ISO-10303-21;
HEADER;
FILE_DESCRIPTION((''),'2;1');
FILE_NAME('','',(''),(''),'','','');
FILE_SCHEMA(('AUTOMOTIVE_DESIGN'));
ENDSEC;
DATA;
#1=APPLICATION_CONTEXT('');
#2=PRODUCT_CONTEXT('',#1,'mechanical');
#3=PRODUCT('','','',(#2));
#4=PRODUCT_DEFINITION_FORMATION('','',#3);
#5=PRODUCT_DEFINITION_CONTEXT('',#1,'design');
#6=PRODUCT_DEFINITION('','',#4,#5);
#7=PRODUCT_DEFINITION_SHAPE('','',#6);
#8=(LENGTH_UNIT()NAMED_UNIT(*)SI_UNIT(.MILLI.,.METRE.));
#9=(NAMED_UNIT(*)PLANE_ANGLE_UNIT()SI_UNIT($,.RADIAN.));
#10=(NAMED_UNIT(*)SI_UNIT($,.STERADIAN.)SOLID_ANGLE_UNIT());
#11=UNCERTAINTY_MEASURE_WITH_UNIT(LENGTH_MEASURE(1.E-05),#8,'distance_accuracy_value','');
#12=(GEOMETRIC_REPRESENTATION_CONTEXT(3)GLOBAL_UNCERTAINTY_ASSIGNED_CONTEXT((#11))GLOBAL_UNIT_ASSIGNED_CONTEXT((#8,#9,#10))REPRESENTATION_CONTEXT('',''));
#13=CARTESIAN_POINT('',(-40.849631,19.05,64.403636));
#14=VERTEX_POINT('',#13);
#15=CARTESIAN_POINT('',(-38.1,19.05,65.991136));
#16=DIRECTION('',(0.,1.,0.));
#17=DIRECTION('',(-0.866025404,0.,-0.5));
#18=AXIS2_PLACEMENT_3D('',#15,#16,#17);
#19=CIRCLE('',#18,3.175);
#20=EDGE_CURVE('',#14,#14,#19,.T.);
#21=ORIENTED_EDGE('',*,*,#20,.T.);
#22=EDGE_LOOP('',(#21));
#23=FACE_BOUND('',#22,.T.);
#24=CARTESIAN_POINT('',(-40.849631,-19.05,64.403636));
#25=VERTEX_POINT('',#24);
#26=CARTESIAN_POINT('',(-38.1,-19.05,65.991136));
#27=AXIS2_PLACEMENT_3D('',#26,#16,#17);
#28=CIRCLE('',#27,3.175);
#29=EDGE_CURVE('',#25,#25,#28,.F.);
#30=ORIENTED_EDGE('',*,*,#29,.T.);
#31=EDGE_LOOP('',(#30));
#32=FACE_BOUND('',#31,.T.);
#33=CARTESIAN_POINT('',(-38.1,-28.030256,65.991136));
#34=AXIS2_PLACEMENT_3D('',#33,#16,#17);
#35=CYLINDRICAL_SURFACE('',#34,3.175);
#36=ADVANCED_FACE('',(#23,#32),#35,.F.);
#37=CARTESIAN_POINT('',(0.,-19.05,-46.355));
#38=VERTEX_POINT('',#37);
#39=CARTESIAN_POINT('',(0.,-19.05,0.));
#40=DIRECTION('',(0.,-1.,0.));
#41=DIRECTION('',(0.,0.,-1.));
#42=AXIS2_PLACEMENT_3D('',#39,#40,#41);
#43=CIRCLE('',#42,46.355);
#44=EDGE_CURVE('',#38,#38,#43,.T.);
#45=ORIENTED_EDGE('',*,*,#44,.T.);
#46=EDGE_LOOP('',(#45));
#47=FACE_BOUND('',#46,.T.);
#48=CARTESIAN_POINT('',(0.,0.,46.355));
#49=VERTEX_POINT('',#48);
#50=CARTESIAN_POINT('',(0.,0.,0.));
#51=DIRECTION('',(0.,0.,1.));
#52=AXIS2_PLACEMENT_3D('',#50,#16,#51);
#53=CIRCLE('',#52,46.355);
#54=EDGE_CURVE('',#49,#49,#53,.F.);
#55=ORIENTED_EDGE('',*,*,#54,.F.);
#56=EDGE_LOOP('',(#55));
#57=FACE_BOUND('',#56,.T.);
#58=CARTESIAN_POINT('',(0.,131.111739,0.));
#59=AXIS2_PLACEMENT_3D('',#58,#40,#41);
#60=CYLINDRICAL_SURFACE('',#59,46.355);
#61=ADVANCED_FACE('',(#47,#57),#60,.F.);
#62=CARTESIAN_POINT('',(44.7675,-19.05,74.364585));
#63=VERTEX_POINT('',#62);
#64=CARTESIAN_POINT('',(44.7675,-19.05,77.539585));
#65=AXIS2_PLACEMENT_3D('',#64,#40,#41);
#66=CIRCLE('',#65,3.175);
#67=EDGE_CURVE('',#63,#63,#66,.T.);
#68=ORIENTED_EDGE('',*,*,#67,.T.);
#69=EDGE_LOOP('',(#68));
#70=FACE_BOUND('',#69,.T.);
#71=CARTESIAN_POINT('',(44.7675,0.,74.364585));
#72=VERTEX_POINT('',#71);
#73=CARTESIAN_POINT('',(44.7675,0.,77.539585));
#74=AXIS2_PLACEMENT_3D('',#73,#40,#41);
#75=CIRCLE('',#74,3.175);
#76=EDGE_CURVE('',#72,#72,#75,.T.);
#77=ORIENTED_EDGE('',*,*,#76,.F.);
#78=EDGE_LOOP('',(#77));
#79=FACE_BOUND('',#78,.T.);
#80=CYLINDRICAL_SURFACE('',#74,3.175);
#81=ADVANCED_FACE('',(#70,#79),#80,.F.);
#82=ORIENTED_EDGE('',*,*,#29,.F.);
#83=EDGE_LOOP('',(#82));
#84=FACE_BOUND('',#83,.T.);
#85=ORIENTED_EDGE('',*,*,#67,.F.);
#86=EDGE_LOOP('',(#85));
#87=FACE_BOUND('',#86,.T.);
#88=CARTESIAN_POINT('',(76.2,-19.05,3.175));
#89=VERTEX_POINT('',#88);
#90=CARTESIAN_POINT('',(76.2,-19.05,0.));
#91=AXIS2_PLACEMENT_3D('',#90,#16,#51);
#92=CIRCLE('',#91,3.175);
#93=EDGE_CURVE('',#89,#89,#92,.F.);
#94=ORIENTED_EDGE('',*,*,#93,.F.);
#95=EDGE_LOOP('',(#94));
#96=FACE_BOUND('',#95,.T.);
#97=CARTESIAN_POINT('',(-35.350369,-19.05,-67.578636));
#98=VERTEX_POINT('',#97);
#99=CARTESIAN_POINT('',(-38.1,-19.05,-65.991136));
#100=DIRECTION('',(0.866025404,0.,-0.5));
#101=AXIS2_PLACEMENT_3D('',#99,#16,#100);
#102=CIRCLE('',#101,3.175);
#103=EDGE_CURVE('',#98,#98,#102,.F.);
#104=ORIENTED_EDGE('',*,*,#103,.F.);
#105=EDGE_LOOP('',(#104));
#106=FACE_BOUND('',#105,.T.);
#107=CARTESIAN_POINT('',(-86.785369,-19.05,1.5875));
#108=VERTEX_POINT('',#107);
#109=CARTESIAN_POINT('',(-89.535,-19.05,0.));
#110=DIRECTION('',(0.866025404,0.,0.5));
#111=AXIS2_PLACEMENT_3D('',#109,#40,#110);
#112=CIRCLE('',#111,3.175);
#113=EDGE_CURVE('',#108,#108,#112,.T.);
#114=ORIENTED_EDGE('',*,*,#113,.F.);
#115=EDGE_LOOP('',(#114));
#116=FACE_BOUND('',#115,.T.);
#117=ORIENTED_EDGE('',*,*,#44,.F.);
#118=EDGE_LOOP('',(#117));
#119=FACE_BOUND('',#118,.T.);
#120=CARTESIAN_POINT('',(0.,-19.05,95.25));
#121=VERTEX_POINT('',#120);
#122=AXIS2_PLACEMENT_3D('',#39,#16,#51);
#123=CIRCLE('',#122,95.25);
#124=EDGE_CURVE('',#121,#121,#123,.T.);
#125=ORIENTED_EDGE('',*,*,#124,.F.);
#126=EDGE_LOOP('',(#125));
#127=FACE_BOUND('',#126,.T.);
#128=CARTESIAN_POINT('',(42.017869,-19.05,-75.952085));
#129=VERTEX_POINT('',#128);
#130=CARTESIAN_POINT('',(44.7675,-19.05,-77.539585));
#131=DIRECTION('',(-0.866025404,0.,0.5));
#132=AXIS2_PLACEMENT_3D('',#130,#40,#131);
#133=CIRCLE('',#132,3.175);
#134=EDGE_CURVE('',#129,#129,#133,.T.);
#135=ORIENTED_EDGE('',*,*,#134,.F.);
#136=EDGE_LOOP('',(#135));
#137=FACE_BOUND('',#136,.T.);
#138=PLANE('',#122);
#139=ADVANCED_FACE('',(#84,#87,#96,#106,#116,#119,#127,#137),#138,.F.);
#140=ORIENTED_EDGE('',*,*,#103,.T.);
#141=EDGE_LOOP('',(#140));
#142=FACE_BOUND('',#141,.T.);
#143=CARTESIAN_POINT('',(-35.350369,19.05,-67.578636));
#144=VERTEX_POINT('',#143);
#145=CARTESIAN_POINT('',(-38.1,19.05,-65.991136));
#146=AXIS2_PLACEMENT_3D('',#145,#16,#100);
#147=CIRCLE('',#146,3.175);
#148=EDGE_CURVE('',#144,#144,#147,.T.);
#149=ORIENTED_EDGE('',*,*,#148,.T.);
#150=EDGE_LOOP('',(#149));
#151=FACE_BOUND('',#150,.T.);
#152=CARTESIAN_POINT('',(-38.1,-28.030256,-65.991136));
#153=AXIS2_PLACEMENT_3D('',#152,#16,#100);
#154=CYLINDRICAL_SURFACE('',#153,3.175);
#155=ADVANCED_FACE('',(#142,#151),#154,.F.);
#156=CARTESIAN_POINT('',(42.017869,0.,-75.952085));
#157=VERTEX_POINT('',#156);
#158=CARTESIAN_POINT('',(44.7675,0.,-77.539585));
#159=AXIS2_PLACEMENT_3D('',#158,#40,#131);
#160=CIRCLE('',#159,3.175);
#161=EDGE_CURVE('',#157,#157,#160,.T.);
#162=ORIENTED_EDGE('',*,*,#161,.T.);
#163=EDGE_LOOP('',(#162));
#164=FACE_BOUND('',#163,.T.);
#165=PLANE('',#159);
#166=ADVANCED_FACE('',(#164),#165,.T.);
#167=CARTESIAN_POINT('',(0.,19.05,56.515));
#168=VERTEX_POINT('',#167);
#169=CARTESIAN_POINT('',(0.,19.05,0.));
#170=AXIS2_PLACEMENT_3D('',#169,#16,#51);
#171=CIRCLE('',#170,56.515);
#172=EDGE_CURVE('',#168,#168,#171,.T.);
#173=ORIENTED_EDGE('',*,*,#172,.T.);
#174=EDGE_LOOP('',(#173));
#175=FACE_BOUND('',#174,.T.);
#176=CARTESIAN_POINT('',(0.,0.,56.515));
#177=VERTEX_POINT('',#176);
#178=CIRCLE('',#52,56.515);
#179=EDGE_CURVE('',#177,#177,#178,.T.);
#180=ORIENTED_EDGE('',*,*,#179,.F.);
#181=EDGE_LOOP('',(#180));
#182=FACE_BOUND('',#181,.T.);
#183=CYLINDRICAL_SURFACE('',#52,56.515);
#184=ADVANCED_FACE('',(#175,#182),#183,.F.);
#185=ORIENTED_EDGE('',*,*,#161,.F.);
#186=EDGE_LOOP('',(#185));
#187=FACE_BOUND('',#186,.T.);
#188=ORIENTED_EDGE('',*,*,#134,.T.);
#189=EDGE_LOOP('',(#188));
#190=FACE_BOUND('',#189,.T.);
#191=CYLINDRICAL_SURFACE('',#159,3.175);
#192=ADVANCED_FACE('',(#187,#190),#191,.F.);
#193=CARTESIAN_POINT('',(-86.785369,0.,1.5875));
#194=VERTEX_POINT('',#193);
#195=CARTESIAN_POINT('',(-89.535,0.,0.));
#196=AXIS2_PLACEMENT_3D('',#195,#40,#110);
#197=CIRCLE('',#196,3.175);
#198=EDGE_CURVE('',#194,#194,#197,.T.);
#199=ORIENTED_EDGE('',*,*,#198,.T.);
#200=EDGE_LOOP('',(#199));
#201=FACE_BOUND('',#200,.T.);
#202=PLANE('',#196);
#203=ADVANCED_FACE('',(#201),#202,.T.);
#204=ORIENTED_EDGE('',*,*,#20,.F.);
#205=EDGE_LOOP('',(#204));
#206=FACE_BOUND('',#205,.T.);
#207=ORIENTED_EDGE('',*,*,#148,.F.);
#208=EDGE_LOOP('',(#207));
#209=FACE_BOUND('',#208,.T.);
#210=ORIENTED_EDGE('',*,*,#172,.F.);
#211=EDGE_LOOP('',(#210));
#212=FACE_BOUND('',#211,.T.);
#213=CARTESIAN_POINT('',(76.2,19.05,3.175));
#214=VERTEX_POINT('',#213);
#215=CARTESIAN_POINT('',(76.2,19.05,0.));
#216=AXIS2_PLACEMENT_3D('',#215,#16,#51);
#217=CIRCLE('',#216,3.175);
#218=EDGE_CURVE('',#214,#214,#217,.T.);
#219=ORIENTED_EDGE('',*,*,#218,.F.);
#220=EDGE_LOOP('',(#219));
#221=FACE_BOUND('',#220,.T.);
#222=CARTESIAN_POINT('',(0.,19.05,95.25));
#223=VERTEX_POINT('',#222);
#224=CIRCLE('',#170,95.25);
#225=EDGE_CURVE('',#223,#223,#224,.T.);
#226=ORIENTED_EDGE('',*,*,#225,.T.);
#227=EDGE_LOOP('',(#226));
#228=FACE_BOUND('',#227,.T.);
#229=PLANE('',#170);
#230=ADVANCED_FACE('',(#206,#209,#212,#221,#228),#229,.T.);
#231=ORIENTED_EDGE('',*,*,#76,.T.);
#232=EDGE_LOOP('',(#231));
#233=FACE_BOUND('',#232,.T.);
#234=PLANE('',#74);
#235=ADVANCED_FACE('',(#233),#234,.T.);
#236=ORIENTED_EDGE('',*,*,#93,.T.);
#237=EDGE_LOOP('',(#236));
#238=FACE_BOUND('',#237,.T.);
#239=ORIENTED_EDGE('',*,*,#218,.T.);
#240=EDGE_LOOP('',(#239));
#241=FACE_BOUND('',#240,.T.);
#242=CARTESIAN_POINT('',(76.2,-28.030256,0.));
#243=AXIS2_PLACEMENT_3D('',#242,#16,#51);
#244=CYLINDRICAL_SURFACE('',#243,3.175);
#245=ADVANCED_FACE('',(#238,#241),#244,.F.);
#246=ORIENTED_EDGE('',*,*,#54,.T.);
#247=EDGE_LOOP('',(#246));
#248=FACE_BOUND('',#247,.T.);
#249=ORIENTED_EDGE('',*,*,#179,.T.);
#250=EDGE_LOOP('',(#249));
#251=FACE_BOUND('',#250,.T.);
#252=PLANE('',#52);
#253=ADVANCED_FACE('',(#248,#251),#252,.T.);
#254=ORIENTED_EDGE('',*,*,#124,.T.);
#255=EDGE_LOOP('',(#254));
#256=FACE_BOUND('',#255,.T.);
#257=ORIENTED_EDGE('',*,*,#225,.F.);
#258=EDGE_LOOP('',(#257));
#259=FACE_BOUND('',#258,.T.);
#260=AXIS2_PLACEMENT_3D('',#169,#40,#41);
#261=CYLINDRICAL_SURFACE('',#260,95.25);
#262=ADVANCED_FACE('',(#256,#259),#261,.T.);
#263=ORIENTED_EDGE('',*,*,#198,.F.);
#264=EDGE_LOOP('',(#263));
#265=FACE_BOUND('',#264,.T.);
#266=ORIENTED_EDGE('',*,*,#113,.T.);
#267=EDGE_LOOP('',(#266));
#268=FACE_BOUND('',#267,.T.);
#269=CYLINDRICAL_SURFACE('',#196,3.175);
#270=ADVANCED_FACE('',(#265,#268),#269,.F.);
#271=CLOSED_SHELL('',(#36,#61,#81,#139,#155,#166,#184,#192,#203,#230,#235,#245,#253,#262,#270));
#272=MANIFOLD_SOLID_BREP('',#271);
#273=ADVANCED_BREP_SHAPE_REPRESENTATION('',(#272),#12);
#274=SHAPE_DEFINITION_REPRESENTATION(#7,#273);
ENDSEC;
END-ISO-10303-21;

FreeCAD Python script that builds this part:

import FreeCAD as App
import Part
import Sketcher
from FreeCAD import Vector
Q = App.Units.Quantity

doc = App.newDocument("Part")
body = doc.addObject("PartDesign::Body", "Body")

sketch1 = doc.addObject("Sketcher::SketchObject", "Sketch")
body.addObject(sketch1)
sketch1.AttachmentSupport = (doc.XZ_Plane, [""])
sketch1.MapMode = "FlatFace"
sketch1.addGeometry(Part.Circle(Vector(0, 0, 0), Vector(0, 0, 1), 95), False)
sketch1.addConstraint([
    Sketcher.Constraint("Coincident", 0, 3, -1, 1),
    Sketcher.Constraint("Diameter", 0, Q("7.5 in")),
])
pad1 = doc.addObject("PartDesign::Pad", "Pad")
body.addObject(pad1)
pad1.Profile = sketch1
pad1.Length = Q("1.5 in")
pad1.Midplane = True

sketch2 = doc.addObject("Sketcher::SketchObject", "Sketch001")
body.addObject(sketch2)
sketch2.AttachmentSupport = (doc.XZ_Plane, [""])
sketch2.MapMode = "FlatFace"
sketch2.AttachmentOffset = App.Placement(Vector(0, 0, -0.75 * 25.4), App.Rotation())
sketch2.addGeometry(Part.Circle(Vector(0, 0, 0), Vector(0, 0, 1), 57), False)
sketch2.addConstraint([
    Sketcher.Constraint("Coincident", 0, 3, -1, 1),
    Sketcher.Constraint("Diameter", 0, Q("4.45 in")),
])
pocket1 = doc.addObject("PartDesign::Pocket", "Pocket")
body.addObject(pocket1)
pocket1.Profile = sketch2
pocket1.Length = Q("0.75 in")
pocket1.Reversed = True

sketch3 = doc.addObject("Sketcher::SketchObject", "Sketch002")
body.addObject(sketch3)
sketch3.AttachmentSupport = (doc.XZ_Plane, [""])
sketch3.MapMode = "FlatFace"
sketch3.AttachmentOffset = App.Placement(Vector(0, 0, 0.75 * 25.4), App.Rotation())
sketch3.addGeometry(Part.Circle(Vector(0, 0, 0), Vector(0, 0, 1), 46), False)
sketch3.addConstraint([
    Sketcher.Constraint("Coincident", 0, 3, -1, 1),
    Sketcher.Constraint("Diameter", 0, Q("3.65 in")),
])
pocket2 = doc.addObject("PartDesign::Pocket", "Pocket001")
body.addObject(pocket2)
pocket2.Profile = sketch3
pocket2.Length = Q("0.75 in")

sketch4 = doc.addObject("Sketcher::SketchObject", "Sketch003")
body.addObject(sketch4)
sketch4.AttachmentSupport = (doc.XZ_Plane, [""])
sketch4.MapMode = "FlatFace"
sketch4.AttachmentOffset = App.Placement(Vector(0, 0, -0.75 * 25.4), App.Rotation())
sketch4.addGeometry(Part.Circle(Vector(76.2, 0, 0), Vector(0, 0, 1), 3.2), False)
sketch4.addConstraint([
    Sketcher.Constraint("PointOnObject", 0, 3, -1),
    Sketcher.Constraint("Diameter", 0, Q("0.25 in")),
    Sketcher.Constraint("DistanceX", -1, 1, 0, 3, Q("3 in")),
])
pocket3 = doc.addObject("PartDesign::Pocket", "Pocket002")
body.addObject(pocket3)
pocket3.Profile = sketch4
pocket3.Length = Q("1.5 in")
pocket3.Reversed = True
doc.recompute()

polarpattern = doc.addObject("PartDesign::PolarPattern", "PolarPattern")
body.addObject(polarpattern)
polarpattern.Originals = [pocket3]
polarpattern.Axis = (doc.Y_Axis, [""])
polarpattern.Angle = 360
polarpattern.Occurrences = 3
body.Tip = polarpattern

sketch5 = doc.addObject("Sketcher::SketchObject", "Sketch004")
body.addObject(sketch5)
sketch5.AttachmentSupport = (doc.XZ_Plane, [""])
sketch5.MapMode = "FlatFace"
sketch5.AttachmentOffset = App.Placement(Vector(0, 0, 0.75 * 25.4), App.Rotation())
sketch5.addGeometry(Part.Circle(Vector(44.8, 77.5, 0), Vector(0, 0, 1), 3.2), False)
sketch5.addConstraint([
    Sketcher.Constraint("Diameter", 0, Q("0.25 in")),
    Sketcher.Constraint("DistanceX", -1, 1, 0, 3, Q("1.7625 in")),
    Sketcher.Constraint("DistanceY", -1, 1, 0, 3, Q("77.539585 mm")),
])
pocket4 = doc.addObject("PartDesign::Pocket", "Pocket003")
body.addObject(pocket4)
pocket4.Profile = sketch5
pocket4.Length = Q("0.75 in")
doc.recompute()

polarpattern2 = doc.addObject("PartDesign::PolarPattern", "PolarPattern001")
body.addObject(polarpattern2)
polarpattern2.Originals = [pocket4]
polarpattern2.Axis = (doc.Y_Axis, [""])
polarpattern2.Angle = 360
polarpattern2.Occurrences = 3
body.Tip = polarpattern2

doc.recompute()
